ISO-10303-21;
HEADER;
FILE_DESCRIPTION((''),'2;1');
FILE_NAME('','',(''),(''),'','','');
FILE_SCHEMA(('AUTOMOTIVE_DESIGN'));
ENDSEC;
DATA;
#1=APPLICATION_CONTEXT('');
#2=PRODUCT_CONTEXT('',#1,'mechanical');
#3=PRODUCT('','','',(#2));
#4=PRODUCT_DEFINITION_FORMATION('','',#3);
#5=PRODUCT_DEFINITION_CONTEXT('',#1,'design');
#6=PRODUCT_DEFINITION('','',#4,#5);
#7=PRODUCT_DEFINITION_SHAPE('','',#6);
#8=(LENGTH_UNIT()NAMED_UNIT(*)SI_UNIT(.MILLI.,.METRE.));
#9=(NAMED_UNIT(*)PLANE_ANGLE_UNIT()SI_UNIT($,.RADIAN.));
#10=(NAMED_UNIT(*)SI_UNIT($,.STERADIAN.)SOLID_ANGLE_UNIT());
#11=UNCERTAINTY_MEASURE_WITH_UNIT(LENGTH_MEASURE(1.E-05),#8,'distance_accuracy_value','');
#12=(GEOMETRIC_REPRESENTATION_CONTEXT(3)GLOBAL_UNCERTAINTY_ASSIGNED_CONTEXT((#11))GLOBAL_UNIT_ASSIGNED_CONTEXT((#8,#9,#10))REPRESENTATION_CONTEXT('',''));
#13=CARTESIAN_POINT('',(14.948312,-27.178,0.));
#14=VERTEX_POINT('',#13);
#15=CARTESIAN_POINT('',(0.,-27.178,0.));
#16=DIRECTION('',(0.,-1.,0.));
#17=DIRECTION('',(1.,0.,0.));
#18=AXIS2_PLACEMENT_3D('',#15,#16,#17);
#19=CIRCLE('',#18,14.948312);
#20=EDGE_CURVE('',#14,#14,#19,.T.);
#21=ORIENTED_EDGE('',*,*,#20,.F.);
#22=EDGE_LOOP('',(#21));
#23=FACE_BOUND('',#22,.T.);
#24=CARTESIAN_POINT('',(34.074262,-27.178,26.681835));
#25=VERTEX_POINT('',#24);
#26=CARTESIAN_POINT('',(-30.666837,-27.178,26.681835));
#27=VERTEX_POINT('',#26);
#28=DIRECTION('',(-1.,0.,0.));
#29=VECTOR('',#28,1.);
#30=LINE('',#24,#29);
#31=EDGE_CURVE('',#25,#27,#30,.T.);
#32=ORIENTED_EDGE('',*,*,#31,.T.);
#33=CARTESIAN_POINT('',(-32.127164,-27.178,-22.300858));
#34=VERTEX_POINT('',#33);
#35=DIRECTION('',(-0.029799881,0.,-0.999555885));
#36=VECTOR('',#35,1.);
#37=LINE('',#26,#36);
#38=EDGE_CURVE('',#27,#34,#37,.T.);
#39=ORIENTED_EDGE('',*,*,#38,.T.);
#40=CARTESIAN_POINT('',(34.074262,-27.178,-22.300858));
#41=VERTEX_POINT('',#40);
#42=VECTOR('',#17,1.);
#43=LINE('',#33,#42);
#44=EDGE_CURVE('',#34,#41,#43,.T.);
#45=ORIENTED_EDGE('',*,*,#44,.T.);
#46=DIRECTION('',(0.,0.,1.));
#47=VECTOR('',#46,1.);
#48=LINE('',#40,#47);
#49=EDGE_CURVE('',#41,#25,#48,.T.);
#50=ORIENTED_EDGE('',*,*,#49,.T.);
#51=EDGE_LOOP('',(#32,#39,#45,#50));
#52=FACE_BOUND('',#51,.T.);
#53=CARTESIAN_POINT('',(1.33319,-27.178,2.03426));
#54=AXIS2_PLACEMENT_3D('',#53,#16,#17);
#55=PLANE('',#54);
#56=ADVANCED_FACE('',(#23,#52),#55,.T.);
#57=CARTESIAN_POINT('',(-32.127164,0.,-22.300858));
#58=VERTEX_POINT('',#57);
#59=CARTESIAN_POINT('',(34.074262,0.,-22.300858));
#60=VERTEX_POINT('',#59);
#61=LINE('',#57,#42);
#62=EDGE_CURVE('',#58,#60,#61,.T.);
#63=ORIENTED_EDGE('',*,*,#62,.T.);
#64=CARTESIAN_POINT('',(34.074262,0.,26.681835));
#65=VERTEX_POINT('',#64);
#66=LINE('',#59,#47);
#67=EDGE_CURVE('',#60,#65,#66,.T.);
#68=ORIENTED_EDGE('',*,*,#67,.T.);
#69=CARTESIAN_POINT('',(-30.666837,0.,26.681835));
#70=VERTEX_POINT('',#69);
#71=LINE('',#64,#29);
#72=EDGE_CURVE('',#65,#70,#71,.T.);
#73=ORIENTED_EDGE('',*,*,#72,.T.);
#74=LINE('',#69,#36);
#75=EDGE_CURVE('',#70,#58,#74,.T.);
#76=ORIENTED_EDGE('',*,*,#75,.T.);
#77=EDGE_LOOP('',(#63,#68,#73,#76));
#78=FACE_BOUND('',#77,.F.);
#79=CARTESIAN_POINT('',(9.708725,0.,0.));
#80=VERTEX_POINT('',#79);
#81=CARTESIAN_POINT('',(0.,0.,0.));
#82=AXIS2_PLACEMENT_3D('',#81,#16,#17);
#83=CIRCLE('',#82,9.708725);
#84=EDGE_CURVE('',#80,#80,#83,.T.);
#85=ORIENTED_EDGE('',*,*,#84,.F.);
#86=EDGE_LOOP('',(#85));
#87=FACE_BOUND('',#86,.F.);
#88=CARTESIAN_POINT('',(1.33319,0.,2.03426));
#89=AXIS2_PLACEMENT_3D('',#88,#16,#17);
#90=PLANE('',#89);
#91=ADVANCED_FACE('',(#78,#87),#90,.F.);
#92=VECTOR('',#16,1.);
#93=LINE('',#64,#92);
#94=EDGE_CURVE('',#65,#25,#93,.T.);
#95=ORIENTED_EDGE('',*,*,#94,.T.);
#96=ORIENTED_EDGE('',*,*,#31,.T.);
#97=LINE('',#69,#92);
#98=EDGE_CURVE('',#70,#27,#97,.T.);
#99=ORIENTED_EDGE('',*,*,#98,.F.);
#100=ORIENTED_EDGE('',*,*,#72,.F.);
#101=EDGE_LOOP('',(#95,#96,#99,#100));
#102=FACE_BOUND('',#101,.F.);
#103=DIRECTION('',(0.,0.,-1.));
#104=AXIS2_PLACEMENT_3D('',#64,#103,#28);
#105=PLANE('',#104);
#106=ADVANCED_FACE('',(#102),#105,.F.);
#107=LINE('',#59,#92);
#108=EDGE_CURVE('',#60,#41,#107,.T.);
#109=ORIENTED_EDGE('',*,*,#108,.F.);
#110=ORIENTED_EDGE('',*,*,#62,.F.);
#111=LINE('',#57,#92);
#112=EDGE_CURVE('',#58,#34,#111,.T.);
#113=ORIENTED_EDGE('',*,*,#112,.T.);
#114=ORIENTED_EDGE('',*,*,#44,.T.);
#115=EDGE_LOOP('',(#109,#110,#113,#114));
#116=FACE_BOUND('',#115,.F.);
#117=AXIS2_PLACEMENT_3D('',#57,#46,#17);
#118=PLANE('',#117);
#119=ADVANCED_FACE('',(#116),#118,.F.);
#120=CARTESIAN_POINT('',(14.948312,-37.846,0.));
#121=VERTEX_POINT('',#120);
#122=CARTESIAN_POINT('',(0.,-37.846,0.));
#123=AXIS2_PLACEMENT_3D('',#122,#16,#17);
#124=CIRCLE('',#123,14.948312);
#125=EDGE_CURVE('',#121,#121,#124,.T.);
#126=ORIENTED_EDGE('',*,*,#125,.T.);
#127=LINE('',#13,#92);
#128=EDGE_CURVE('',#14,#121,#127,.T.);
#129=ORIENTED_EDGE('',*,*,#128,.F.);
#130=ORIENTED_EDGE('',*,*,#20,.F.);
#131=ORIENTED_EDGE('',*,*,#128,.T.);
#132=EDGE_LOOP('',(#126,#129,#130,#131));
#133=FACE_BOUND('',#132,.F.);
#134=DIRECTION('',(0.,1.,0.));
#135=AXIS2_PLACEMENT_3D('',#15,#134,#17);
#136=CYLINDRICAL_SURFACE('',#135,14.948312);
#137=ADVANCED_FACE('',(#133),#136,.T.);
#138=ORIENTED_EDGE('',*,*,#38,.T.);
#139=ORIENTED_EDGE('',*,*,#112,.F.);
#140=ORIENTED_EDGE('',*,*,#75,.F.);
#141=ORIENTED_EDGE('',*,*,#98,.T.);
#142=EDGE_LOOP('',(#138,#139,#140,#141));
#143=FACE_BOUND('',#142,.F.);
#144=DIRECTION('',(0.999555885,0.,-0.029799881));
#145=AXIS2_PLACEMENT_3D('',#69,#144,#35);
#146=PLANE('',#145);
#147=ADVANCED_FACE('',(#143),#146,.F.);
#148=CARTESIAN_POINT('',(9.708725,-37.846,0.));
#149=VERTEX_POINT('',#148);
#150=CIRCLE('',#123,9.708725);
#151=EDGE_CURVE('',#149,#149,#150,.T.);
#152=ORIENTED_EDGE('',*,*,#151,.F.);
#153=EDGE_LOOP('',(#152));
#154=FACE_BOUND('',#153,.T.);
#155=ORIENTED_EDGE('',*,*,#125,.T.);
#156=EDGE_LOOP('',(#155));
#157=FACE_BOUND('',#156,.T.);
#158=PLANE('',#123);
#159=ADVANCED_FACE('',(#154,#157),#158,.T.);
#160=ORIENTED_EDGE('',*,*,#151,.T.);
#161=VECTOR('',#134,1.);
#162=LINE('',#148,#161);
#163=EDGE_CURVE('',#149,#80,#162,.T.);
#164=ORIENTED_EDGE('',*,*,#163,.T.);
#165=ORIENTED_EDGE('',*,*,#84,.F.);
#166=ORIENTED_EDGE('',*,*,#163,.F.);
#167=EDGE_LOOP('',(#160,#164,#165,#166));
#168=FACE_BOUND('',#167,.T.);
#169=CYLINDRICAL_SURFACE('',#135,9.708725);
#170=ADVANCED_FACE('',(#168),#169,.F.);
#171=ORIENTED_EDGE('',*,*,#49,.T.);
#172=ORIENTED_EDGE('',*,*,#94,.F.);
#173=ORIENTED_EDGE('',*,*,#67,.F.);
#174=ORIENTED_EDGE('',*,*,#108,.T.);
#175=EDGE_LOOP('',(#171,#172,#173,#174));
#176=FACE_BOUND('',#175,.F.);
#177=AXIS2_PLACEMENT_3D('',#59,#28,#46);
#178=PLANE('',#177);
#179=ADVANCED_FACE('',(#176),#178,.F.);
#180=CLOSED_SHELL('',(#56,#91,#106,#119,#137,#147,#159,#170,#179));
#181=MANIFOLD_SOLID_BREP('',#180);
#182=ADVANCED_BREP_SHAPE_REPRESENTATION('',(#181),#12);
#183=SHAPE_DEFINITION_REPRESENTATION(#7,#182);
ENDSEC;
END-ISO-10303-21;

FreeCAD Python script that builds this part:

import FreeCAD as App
import Part
import Sketcher

V = App.Vector
Q = App.Units.Quantity

doc = App.newDocument("Part")
params = doc.addObject("Spreadsheet::Sheet", "Params")
for row, (alias, value) in enumerate([
    ("pad1_length", "1.07 in"),
    ("pad2_length", "0.42 in"),
], start=1):
    params.set(f"A{row}", alias)
    params.set(f"B{row}", "=" + value)
    params.setAlias(f"B{row}", alias)

body = doc.addObject("PartDesign::Body", "Body")

# Sketch on XZ plane
sketch1 = body.newObject("Sketcher::SketchObject", "Sketch")
sketch1.AttachmentSupport = (doc.getObject("XZ_Plane"), [""])
sketch1.MapMode = "FlatFace"
sketch1.addGeometry([
    Part.LineSegment(V(34, 27, 0), V(-31, 27, 0)),  # 0
    Part.LineSegment(V(-31, 27, 0), V(-32, -22, 0)),  # 1
    Part.LineSegment(V(-32, -22, 0), V(34, -22, 0)),  # 2
    Part.LineSegment(V(34, -22, 0), V(34, 27, 0)),  # 3
    Part.Circle(V(0, 0, 0), V(0, 0, 1), 10),  # 4
], False)
sketch1.addConstraint([
    Sketcher.Constraint("Coincident", 0, 2, 1, 1),
    Sketcher.Constraint("Coincident", 1, 2, 2, 1),
    Sketcher.Constraint("Coincident", 2, 2, 3, 1),
    Sketcher.Constraint("Coincident", 3, 2, 0, 1),
    Sketcher.Constraint("Horizontal", 0),
    Sketcher.Constraint("Horizontal", 2),
    Sketcher.Constraint("Vertical", 3),
    Sketcher.Constraint("Coincident", 4, 3, -1, 1),
    Sketcher.Constraint("Diameter", 4, Q("19.41745 mm")),
    Sketcher.Constraint("DistanceX", 0, 2, 0, 1, Q("64.741099 mm")),
    Sketcher.Constraint("DistanceX", 2, 1, 2, 2, Q("66.201426 mm")),
    Sketcher.Constraint("DistanceY", 3, 1, 3, 2, Q("48.982693 mm")),
    Sketcher.Constraint("DistanceY", 1, 2, -1, 1, Q("22.300858 mm")),
    Sketcher.Constraint("DistanceX", -1, 1, 2, 2, Q("34.074262 mm")),
])
pad1 = body.newObject("PartDesign::Pad", "Pad")
pad1.Profile = sketch1
pad1.setExpression("Length", "Params.pad1_length")

# Sketch on XZ plane
sketch2 = body.newObject("Sketcher::SketchObject", "Sketch001")
sketch2.AttachmentSupport = (doc.getObject("XZ_Plane"), [""])
sketch2.MapMode = "FlatFace"
sketch2.AttachmentOffset = App.Placement(V(0, 0, 1.07 * 25.4), App.Rotation())
sketch2.addGeometry([
    Part.Circle(V(0, 0, 0), V(0, 0, 1), 15),
    Part.Circle(V(0, 0, 0), V(0, 0, 1), 10),
], False)
sketch2.addConstraint([
    Sketcher.Constraint("Coincident", 0, 3, -1, 1),
    Sketcher.Constraint("Coincident", 1, 3, -1, 1),
    Sketcher.Constraint("Diameter", 1, Q("19.41745 mm")),
    Sketcher.Constraint("Diameter", 0, Q("29.896624 mm")),
])
pad2 = body.newObject("PartDesign::Pad", "Pad001")
pad2.Profile = sketch2
pad2.setExpression("Length", "Params.pad2_length")

doc.recompute()
